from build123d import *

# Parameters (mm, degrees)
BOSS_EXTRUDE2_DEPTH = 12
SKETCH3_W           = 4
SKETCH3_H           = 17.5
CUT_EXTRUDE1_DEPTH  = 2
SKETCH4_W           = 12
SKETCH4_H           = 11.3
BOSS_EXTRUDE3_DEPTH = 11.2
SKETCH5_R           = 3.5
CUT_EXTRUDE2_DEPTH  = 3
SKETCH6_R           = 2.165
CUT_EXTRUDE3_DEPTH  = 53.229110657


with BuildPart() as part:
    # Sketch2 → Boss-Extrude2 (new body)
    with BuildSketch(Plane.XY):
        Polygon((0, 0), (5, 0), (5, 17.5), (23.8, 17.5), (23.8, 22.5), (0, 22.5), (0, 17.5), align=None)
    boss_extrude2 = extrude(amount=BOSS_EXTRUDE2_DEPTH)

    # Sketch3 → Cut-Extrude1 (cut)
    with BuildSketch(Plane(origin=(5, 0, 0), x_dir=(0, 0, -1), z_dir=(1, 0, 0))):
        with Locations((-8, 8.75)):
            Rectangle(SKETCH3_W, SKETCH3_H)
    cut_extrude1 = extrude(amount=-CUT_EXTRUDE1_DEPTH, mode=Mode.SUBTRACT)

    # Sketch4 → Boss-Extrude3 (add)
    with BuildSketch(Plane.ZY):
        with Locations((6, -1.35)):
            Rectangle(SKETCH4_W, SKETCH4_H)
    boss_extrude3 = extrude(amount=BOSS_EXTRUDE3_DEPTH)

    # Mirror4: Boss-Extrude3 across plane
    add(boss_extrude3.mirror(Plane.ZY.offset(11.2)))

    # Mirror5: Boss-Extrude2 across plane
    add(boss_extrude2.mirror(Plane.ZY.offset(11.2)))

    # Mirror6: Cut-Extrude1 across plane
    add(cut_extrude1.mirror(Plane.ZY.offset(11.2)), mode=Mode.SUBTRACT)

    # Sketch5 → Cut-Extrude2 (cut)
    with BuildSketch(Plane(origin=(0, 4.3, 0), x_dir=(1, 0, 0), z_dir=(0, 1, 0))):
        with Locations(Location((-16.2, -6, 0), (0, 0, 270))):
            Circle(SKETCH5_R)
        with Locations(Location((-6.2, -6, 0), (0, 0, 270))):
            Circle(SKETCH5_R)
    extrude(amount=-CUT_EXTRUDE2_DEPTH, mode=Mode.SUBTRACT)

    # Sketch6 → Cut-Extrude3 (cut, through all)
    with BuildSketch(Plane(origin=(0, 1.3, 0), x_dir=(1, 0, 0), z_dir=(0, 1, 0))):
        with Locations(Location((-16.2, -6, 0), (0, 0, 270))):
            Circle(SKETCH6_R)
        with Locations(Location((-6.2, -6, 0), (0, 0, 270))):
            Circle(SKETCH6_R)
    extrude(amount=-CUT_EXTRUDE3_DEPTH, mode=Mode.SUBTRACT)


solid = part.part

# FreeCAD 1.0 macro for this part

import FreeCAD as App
import Part
import Sketcher
from FreeCAD import Vector
Q = App.Units.Quantity

doc = App.newDocument("Part")
body = doc.addObject("PartDesign::Body", "Body")

# Sketch on XY plane
sketch1 = body.newObject("Sketcher::SketchObject", "Sketch")
sketch1.AttachmentSupport = (doc.getObject("XY_Plane"), [""])
sketch1.MapMode = "FlatFace"
sketch1.addGeometry([
    Part.LineSegment(Vector(0, 0, 0), Vector(5, 0, 0)),  # 0
    Part.LineSegment(Vector(5, 0, 0), Vector(5, 18, 0)),  # 1
    Part.LineSegment(Vector(5, 18, 0), Vector(24, 18, 0)),  # 2
    Part.LineSegment(Vector(24, 18, 0), Vector(24, 22, 0)),  # 3
    Part.LineSegment(Vector(24, 22, 0), Vector(0, 22, 0)),  # 4
    Part.LineSegment(Vector(0, 22, 0), Vector(0, 0, 0)),  # 5
], False)
sketch1.addConstraint([
    Sketcher.Constraint("Coincident", 0, 2, 1, 1),
    Sketcher.Constraint("Coincident", 1, 2, 2, 1),
    Sketcher.Constraint("Coincident", 2, 2, 3, 1),
    Sketcher.Constraint("Coincident", 3, 2, 4, 1),
    Sketcher.Constraint("Coincident", 4, 2, 5, 1),
    Sketcher.Constraint("Coincident", 5, 2, 0, 1),
    Sketcher.Constraint("Horizontal", 0),
    Sketcher.Constraint("Vertical", 1),
    Sketcher.Constraint("Horizontal", 2),
    Sketcher.Constraint("Vertical", 3),
    Sketcher.Constraint("Horizontal", 4),
    Sketcher.Constraint("Vertical", 5),
    Sketcher.Constraint("Coincident", 5, 2, -1, 1),
    Sketcher.Constraint("Equal", 0, 3),
    Sketcher.Constraint("DistanceX", 0, 1, 0, 2, Q("5 mm")),
    Sketcher.Constraint("DistanceX", 2, 1, 2, 2, Q("18.8 mm")),
    Sketcher.Constraint("DistanceY", 1, 1, 1, 2, Q("17.5 mm")),
])
pad1 = body.newObject("PartDesign::Pad", "Pad")
pad1.Profile = sketch1
pad1.Length = 12

# Sketch on YZ plane
sketch2 = body.newObject("Sketcher::SketchObject", "Sketch001")
sketch2.AttachmentSupport = (doc.getObject("YZ_Plane"), [""])
sketch2.MapMode = "FlatFace"
sketch2.AttachmentOffset = App.Placement(Vector(0, 0, 5), App.Rotation())
sketch2.addGeometry([
    Part.LineSegment(Vector(17.5, 10, 0), Vector(0, 10, 0)),
    Part.LineSegment(Vector(0, 10, 0), Vector(0, 6, 0)),
    Part.LineSegment(Vector(0, 6, 0), Vector(17.5, 6, 0)),
    Part.LineSegment(Vector(17.5, 6, 0), Vector(17.5, 10, 0)),
], False)
sketch2.addConstraint([
    Sketcher.Constraint("Coincident", 0, 2, 1, 1),
    Sketcher.Constraint("Coincident", 1, 2, 2, 1),
    Sketcher.Constraint("Coincident", 2, 2, 3, 1),
    Sketcher.Constraint("Coincident", 3, 2, 0, 1),
    Sketcher.Constraint("Horizontal", 0),
    Sketcher.Constraint("Vertical", 1),
    Sketcher.Constraint("Horizontal", 2),
    Sketcher.Constraint("Vertical", 3),
    Sketcher.Constraint("PointOnObject", 0, 2, -2),
    Sketcher.Constraint("DistanceY", 1, 2, 1, 1, Q("4 mm")),
    Sketcher.Constraint("DistanceX", 0, 2, 0, 1, Q("17.5 mm")),
    Sketcher.Constraint("DistanceY", -1, 1, 0, 2, Q("10 mm")),
])
pocket1 = body.newObject("PartDesign::Pocket", "Pocket")
pocket1.Profile = sketch2
pocket1.Length = 2

# Sketch on YZ plane
sketch3 = body.newObject("Sketcher::SketchObject", "Sketch002")
sketch3.AttachmentSupport = (doc.getObject("YZ_Plane"), [""])
sketch3.MapMode = "FlatFace"
sketch3.addGeometry([
    Part.LineSegment(Vector(4, 0, 0), Vector(-7, 0, 0)),
    Part.LineSegment(Vector(-7, 0, 0), Vector(-7, 12, 0)),
    Part.LineSegment(Vector(-7, 12, 0), Vector(4, 12, 0)),
    Part.LineSegment(Vector(4, 12, 0), Vector(4, 0, 0)),
], False)
sketch3.addConstraint([
    Sketcher.Constraint("Coincident", 0, 2, 1, 1),
    Sketcher.Constraint("Coincident", 1, 2, 2, 1),
    Sketcher.Constraint("Coincident", 2, 2, 3, 1),
    Sketcher.Constraint("Coincident", 3, 2, 0, 1),
    Sketcher.Constraint("Horizontal", 0),
    Sketcher.Constraint("Vertical", 1),
    Sketcher.Constraint("Horizontal", 2),
    Sketcher.Constraint("Vertical", 3),
    Sketcher.Constraint("PointOnObject", 0, 2, -1),
    Sketcher.Constraint("DistanceY", 1, 1, 1, 2, Q("12 mm")),
    Sketcher.Constraint("DistanceX", 0, 2, 0, 1, Q("11.3 mm")),
    Sketcher.Constraint("DistanceX", 0, 2, -1, 1, Q("7 mm")),
])
pad2 = body.newObject("PartDesign::Pad", "Pad001")
pad2.Profile = sketch3
pad2.Length = 11.2
pad2.Reversed = True
doc.recompute()

datumplane = body.newObject("PartDesign::Plane", "DatumPlane")
datumplane.AttachmentSupport = (doc.getObject("YZ_Plane"), [""])
datumplane.MapMode = "FlatFace"
datumplane.AttachmentOffset = App.Placement(Vector(0, 0, -11.2), App.Rotation())
mirrored = body.newObject("PartDesign::Mirrored", "Mirrored")
mirrored.Originals = [pad2]
mirrored.MirrorPlane = (datumplane, [""])
body.Tip = mirrored
doc.recompute()

datumplane2 = body.newObject("PartDesign::Plane", "DatumPlane001")
datumplane2.AttachmentSupport = (doc.getObject("YZ_Plane"), [""])
datumplane2.MapMode = "FlatFace"
datumplane2.AttachmentOffset = App.Placement(Vector(0, 0, -11.2), App.Rotation())
mirrored2 = body.newObject("PartDesign::Mirrored", "Mirrored001")
mirrored2.Originals = [pad1]
mirrored2.MirrorPlane = (datumplane2, [""])
body.Tip = mirrored2
doc.recompute()

datumplane3 = body.newObject("PartDesign::Plane", "DatumPlane002")
datumplane3.AttachmentSupport = (doc.getObject("YZ_Plane"), [""])
datumplane3.MapMode = "FlatFace"
datumplane3.AttachmentOffset = App.Placement(Vector(0, 0, -11.2), App.Rotation())
mirrored3 = body.newObject("PartDesign::Mirrored", "Mirrored002")
mirrored3.Originals = [pocket1]
mirrored3.MirrorPlane = (datumplane3, [""])
body.Tip = mirrored3

# Sketch on XZ plane
sketch4 = body.newObject("Sketcher::SketchObject", "Sketch003")
sketch4.AttachmentSupport = (doc.getObject("XZ_Plane"), [""])
sketch4.MapMode = "FlatFace"
sketch4.AttachmentOffset = App.Placement(Vector(0, 0, -4.3), App.Rotation())
sketch4.addGeometry([
    Part.Circle(Vector(-16.2, 6, 0), Vector(0, 0, 1), 3.5),
    Part.Circle(Vector(-6.2, 6, 0), Vector(0, 0, 1), 3.5),
], False)
sketch4.addConstraint([
    Sketcher.Constraint("Equal", 0, 1),
    Sketcher.Constraint("Horizontal", 0, 3, 1, 3),
    Sketcher.Constraint("Diameter", 0, Q("7 mm")),
    Sketcher.Constraint("DistanceY", -1, 1, 0, 3, Q("6 mm")),
    Sketcher.Constraint("DistanceX", 0, 3, 1, 3, Q("10 mm")),
    Sketcher.Constraint("DistanceX", 0, 3, -1, 1, Q("16.2 mm")),
])
pocket2 = body.newObject("PartDesign::Pocket", "Pocket001")
pocket2.Profile = sketch4
pocket2.Length = 3
pocket2.Reversed = True

# Sketch on XZ plane
sketch5 = body.newObject("Sketcher::SketchObject", "Sketch004")
sketch5.AttachmentSupport = (doc.getObject("XZ_Plane"), [""])
sketch5.MapMode = "FlatFace"
sketch5.AttachmentOffset = App.Placement(Vector(0, 0, -1.3), App.Rotation())
sketch5.addGeometry([
    Part.Circle(Vector(-16.2, 6, 0), Vector(0, 0, 1), 2.2),
    Part.Circle(Vector(-6.2, 6, 0), Vector(0, 0, 1), 2.2),
], False)
sketch5.addConstraint([
    Sketcher.Constraint("Equal", 0, 1),
    Sketcher.Constraint("Horizontal", 0, 3, 1, 3),
    Sketcher.Constraint("Diameter", 0, Q("4.33 mm")),
    Sketcher.Constraint("DistanceY", -1, 1, 0, 3, Q("6 mm")),
    Sketcher.Constraint("DistanceX", 0, 3, 1, 3, Q("10 mm")),
    Sketcher.Constraint("DistanceX", 0, 3, -1, 1, Q("16.2 mm")),
])
pocket3 = body.newObject("PartDesign::Pocket", "Pocket002")
pocket3.Profile = sketch5
pocket3.Type = "ThroughAll"
pocket3.Reversed = True

doc.recompute()
